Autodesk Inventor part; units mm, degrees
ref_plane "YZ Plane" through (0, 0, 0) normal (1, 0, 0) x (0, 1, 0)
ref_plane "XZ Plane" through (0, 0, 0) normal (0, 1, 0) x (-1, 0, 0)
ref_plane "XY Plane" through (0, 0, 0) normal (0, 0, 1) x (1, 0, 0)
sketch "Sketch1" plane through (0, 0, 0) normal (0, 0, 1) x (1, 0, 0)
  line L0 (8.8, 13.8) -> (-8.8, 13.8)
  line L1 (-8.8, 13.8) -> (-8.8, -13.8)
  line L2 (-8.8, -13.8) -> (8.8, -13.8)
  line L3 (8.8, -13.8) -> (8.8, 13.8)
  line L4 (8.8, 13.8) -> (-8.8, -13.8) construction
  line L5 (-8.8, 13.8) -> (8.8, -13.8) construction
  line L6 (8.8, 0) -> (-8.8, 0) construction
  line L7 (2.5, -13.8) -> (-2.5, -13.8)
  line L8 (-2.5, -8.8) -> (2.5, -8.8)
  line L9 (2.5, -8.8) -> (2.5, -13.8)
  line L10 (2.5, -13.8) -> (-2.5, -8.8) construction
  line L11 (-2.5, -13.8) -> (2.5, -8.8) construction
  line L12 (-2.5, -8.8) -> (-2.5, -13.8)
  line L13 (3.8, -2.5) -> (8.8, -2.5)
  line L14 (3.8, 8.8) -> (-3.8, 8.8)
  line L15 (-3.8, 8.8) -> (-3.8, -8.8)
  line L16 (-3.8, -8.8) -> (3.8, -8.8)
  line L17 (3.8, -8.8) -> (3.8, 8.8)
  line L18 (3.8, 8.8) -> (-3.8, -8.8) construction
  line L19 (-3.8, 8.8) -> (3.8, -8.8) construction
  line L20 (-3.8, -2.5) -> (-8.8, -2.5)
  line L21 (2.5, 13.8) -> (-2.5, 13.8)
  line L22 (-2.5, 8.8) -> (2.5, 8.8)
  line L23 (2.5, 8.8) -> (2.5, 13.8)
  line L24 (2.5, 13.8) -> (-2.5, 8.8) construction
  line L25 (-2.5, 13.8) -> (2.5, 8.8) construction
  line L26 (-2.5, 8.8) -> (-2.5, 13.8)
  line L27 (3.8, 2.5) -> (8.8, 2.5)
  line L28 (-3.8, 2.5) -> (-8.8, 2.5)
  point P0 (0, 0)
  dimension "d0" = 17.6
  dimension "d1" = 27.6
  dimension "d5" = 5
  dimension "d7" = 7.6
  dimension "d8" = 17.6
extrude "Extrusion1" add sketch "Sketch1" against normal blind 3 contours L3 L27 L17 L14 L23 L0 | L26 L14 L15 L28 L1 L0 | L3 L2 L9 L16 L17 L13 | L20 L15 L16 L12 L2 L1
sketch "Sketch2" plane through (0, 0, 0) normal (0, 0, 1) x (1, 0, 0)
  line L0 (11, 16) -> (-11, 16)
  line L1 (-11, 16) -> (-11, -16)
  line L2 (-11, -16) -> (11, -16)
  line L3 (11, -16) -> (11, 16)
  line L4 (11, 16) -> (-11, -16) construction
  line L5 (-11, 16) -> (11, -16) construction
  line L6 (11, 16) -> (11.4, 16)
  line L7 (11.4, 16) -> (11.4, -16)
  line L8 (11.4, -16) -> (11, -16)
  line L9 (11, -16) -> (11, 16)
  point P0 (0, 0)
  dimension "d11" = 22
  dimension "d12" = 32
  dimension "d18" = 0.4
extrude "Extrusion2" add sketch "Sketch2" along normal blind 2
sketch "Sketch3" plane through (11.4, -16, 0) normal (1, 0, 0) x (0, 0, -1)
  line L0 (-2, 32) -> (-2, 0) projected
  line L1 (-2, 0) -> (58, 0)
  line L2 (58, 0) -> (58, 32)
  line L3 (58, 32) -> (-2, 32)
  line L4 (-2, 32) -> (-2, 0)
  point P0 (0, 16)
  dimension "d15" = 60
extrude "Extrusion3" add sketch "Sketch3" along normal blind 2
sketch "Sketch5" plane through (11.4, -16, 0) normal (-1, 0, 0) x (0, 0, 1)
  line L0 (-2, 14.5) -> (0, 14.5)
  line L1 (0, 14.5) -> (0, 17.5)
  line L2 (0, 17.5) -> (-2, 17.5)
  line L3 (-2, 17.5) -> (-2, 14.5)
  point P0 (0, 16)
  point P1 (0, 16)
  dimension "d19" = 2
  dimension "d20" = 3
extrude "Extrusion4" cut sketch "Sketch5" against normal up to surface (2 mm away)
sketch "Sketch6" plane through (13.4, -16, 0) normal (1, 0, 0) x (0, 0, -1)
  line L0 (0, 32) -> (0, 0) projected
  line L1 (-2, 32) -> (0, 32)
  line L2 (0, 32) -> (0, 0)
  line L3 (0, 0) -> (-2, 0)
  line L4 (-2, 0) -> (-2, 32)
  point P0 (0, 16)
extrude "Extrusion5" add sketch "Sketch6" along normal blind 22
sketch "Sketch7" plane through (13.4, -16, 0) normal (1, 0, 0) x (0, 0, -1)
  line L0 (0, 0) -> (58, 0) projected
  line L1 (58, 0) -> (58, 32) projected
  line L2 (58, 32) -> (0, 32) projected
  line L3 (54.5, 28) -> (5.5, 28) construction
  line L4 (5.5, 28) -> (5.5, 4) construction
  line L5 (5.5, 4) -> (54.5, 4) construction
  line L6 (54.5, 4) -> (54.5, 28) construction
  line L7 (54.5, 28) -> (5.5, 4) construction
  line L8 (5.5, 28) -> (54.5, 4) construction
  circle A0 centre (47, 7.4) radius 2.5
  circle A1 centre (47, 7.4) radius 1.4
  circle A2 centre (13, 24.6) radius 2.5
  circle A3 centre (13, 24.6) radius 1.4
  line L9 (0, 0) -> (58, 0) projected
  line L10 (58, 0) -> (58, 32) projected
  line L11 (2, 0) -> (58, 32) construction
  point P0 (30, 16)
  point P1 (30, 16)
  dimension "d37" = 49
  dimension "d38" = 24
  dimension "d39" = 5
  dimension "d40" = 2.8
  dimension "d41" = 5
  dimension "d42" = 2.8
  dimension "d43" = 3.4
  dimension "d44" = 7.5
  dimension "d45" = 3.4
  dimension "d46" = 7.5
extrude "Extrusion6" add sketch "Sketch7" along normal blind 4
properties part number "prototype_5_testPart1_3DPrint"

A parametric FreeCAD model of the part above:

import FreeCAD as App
import Part
import Sketcher
from FreeCAD import Vector
Q = App.Units.Quantity

doc = App.newDocument("Part")
body = doc.addObject("PartDesign::Body", "Body")
body.AllowCompound = True

sketch1 = body.newObject("Sketcher::SketchObject", "Sketch")
sketch1.AttachmentSupport = (doc.getObject("XY_Plane"), [""])
sketch1.MapMode = "FlatFace"
sketch1.addGeometry(Part.LineSegment(Vector(8.8, 2.5, 0), Vector(8.8, 13.8, 0)), False)
sketch1.addGeometry(Part.LineSegment(Vector(8.8, 13.8, 0), Vector(2.5, 13.8, 0)), False)
sketch1.addGeometry(Part.LineSegment(Vector(2.5, 13.8, 0), Vector(2.5, 8.8, 0)), False)
sketch1.addGeometry(Part.LineSegment(Vector(2.5, 8.8, 0), Vector(3.8, 8.8, 0)), False)
sketch1.addGeometry(Part.LineSegment(Vector(3.8, 8.8, 0), Vector(3.8, 2.5, 0)), False)
sketch1.addGeometry(Part.LineSegment(Vector(3.8, 2.5, 0), Vector(8.8, 2.5, 0)), False)
sketch1.addGeometry(Part.LineSegment(Vector(-2.5, 8.8, 0), Vector(-2.5, 13.8, 0)), False)
sketch1.addGeometry(Part.LineSegment(Vector(-2.5, 13.8, 0), Vector(-8.8, 13.8, 0)), False)
sketch1.addGeometry(Part.LineSegment(Vector(-8.8, 13.8, 0), Vector(-8.8, 2.5, 0)), False)
sketch1.addGeometry(Part.LineSegment(Vector(-8.8, 2.5, 0), Vector(-3.8, 2.5, 0)), False)
sketch1.addGeometry(Part.LineSegment(Vector(-3.8, 2.5, 0), Vector(-3.8, 8.8, 0)), False)
sketch1.addGeometry(Part.LineSegment(Vector(-3.8, 8.8, 0), Vector(-2.5, 8.8, 0)), False)
sketch1.addGeometry(Part.LineSegment(Vector(8.8, -13.8, 0), Vector(8.8, -2.5, 0)), False)
sketch1.addGeometry(Part.LineSegment(Vector(8.8, -2.5, 0), Vector(3.8, -2.5, 0)), False)
sketch1.addGeometry(Part.LineSegment(Vector(3.8, -2.5, 0), Vector(3.8, -8.8, 0)), False)
sketch1.addGeometry(Part.LineSegment(Vector(3.8, -8.8, 0), Vector(2.5, -8.8, 0)), False)
sketch1.addGeometry(Part.LineSegment(Vector(2.5, -8.8, 0), Vector(2.5, -13.8, 0)), False)
sketch1.addGeometry(Part.LineSegment(Vector(2.5, -13.8, 0), Vector(8.8, -13.8, 0)), False)
sketch1.addGeometry(Part.LineSegment(Vector(-3.8, -2.5, 0), Vector(-8.8, -2.5, 0)), False)
sketch1.addGeometry(Part.LineSegment(Vector(-8.8, -2.5, 0), Vector(-8.8, -13.8, 0)), False)
sketch1.addGeometry(Part.LineSegment(Vector(-8.8, -13.8, 0), Vector(-2.5, -13.8, 0)), False)
sketch1.addGeometry(Part.LineSegment(Vector(-2.5, -13.8, 0), Vector(-2.5, -8.8, 0)), False)
sketch1.addGeometry(Part.LineSegment(Vector(-2.5, -8.8, 0), Vector(-3.8, -8.8, 0)), False)
sketch1.addGeometry(Part.LineSegment(Vector(-3.8, -8.8, 0), Vector(-3.8, -2.5, 0)), False)
sketch1.addConstraint(Sketcher.Constraint("Coincident", 0, 2, 1, 1))
sketch1.addConstraint(Sketcher.Constraint("Coincident", 1, 2, 2, 1))
sketch1.addConstraint(Sketcher.Constraint("Coincident", 2, 2, 3, 1))
sketch1.addConstraint(Sketcher.Constraint("Coincident", 3, 2, 4, 1))
sketch1.addConstraint(Sketcher.Constraint("Coincident", 4, 2, 5, 1))
sketch1.addConstraint(Sketcher.Constraint("Coincident", 5, 2, 0, 1))
sketch1.addConstraint(Sketcher.Constraint("Coincident", 6, 2, 7, 1))
sketch1.addConstraint(Sketcher.Constraint("Coincident", 7, 2, 8, 1))
sketch1.addConstraint(Sketcher.Constraint("Coincident", 8, 2, 9, 1))
sketch1.addConstraint(Sketcher.Constraint("Coincident", 9, 2, 10, 1))
sketch1.addConstraint(Sketcher.Constraint("Coincident", 10, 2, 11, 1))
sketch1.addConstraint(Sketcher.Constraint("Coincident", 11, 2, 6, 1))
sketch1.addConstraint(Sketcher.Constraint("Coincident", 12, 2, 13, 1))
sketch1.addConstraint(Sketcher.Constraint("Coincident", 13, 2, 14, 1))
sketch1.addConstraint(Sketcher.Constraint("Coincident", 14, 2, 15, 1))
sketch1.addConstraint(Sketcher.Constraint("Coincident", 15, 2, 16, 1))
sketch1.addConstraint(Sketcher.Constraint("Coincident", 16, 2, 17, 1))
sketch1.addConstraint(Sketcher.Constraint("Coincident", 17, 2, 12, 1))
sketch1.addConstraint(Sketcher.Constraint("Coincident", 18, 2, 19, 1))
sketch1.addConstraint(Sketcher.Constraint("Coincident", 19, 2, 20, 1))
sketch1.addConstraint(Sketcher.Constraint("Coincident", 20, 2, 21, 1))
sketch1.addConstraint(Sketcher.Constraint("Coincident", 21, 2, 22, 1))
sketch1.addConstraint(Sketcher.Constraint("Coincident", 22, 2, 23, 1))
sketch1.addConstraint(Sketcher.Constraint("Coincident", 23, 2, 18, 1))
sketch1.addConstraint(Sketcher.Constraint("Vertical", 0))
sketch1.addConstraint(Sketcher.Constraint("Horizontal", 1))
sketch1.addConstraint(Sketcher.Constraint("Vertical", 2))
sketch1.addConstraint(Sketcher.Constraint("Horizontal", 3))
sketch1.addConstraint(Sketcher.Constraint("Vertical", 4))
sketch1.addConstraint(Sketcher.Constraint("Horizontal", 5))
sketch1.addConstraint(Sketcher.Constraint("Vertical", 6))
sketch1.addConstraint(Sketcher.Constraint("Horizontal", 7))
sketch1.addConstraint(Sketcher.Constraint("Vertical", 8))
sketch1.addConstraint(Sketcher.Constraint("Horizontal", 9))
sketch1.addConstraint(Sketcher.Constraint("Vertical", 10))
sketch1.addConstraint(Sketcher.Constraint("Horizontal", 11))
sketch1.addConstraint(Sketcher.Constraint("Vertical", 12))
sketch1.addConstraint(Sketcher.Constraint("Horizontal", 13))
sketch1.addConstraint(Sketcher.Constraint("Vertical", 14))
sketch1.addConstraint(Sketcher.Constraint("Horizontal", 15))
sketch1.addConstraint(Sketcher.Constraint("Vertical", 16))
sketch1.addConstraint(Sketcher.Constraint("Horizontal", 17))
sketch1.addConstraint(Sketcher.Constraint("Horizontal", 18))
sketch1.addConstraint(Sketcher.Constraint("Vertical", 19))
sketch1.addConstraint(Sketcher.Constraint("Horizontal", 20))
sketch1.addConstraint(Sketcher.Constraint("Vertical", 21))
sketch1.addConstraint(Sketcher.Constraint("Horizontal", 22))
sketch1.addConstraint(Sketcher.Constraint("Vertical", 23))
sketch1.addConstraint(Sketcher.Constraint("Symmetric", 8, 2, 12, 2, -1, 1))
sketch1.addConstraint(Sketcher.Constraint("Symmetric", 10, 2, 14, 2, -1, 1))
sketch1.addConstraint(Sketcher.Constraint("Symmetric", 6, 2, 16, 2, -1, 1))
sketch1.addConstraint(Sketcher.Constraint("Symmetric", 5, 2, 18, 2, -1, 1))
sketch1.addConstraint(Sketcher.Constraint("Symmetric", 1, 2, 20, 2, -1, 1))
sketch1.addConstraint(Sketcher.Constraint("Symmetric", 3, 2, 22, 2, -1, 1))
sketch1.addConstraint(Sketcher.Constraint("Symmetric", 1, 2, 6, 2, -2))
sketch1.addConstraint(Sketcher.Constraint("Symmetric", 5, 2, 8, 2, -2))
sketch1.addConstraint(Sketcher.Constraint("Symmetric", 3, 2, 10, 2, -2))
sketch1.addConstraint(Sketcher.Constraint("Equal", 18, 2))
sketch1.addConstraint(Sketcher.Constraint("Equal", 20, 4))
sketch1.addConstraint(Sketcher.Constraint("DistanceX", 5, 1, 5, 2, Q("5 mm")))
sketch1.addConstraint(Sketcher.Constraint("DistanceX", 6, 2, 1, 2, Q("5 mm")))
sketch1.addConstraint(Sketcher.Constraint("DistanceY", 12, 2, 5, 2, Q("5 mm")))
sketch1.addConstraint(Sketcher.Constraint("DistanceX", 9, 2, 4, 2, Q("7.6 mm")))
pad1 = body.newObject("PartDesign::Pad", "Pad")
pad1.Profile = sketch1
pad1.Length = 3
pad1.Reversed = True

sketch2 = body.newObject("Sketcher::SketchObject", "Sketch001")
sketch2.AttachmentSupport = (doc.getObject("XY_Plane"), [""])
sketch2.MapMode = "FlatFace"
sketch2.addGeometry(Part.LineSegment(Vector(-11, -16, 0), Vector(11.4, -16, 0)), False)
sketch2.addGeometry(Part.LineSegment(Vector(11.4, -16, 0), Vector(11.4, 16, 0)), False)
sketch2.addGeometry(Part.LineSegment(Vector(11.4, 16, 0), Vector(-11, 16, 0)), False)
sketch2.addGeometry(Part.LineSegment(Vector(-11, 16, 0), Vector(-11, -16, 0)), False)
sketch2.addConstraint(Sketcher.Constraint("Coincident", 0, 2, 1, 1))
sketch2.addConstraint(Sketcher.Constraint("Coincident", 1, 2, 2, 1))
sketch2.addConstraint(Sketcher.Constraint("Coincident", 2, 2, 3, 1))
sketch2.addConstraint(Sketcher.Constraint("Coincident", 3, 2, 0, 1))
sketch2.addConstraint(Sketcher.Constraint("Horizontal", 0))
sketch2.addConstraint(Sketcher.Constraint("Vertical", 1))
sketch2.addConstraint(Sketcher.Constraint("Horizontal", 2))
sketch2.addConstraint(Sketcher.Constraint("Vertical", 3))
sketch2.addConstraint(Sketcher.Constraint("DistanceY", 1, 1, 1, 2, Q("32 mm")))
sketch2.addConstraint(Sketcher.Constraint("DistanceX", 0, 1, 0, 2, Q("22.4 mm")))
sketch2.addConstraint(Sketcher.Constraint("DistanceY", 0, 2, -1, 1, Q("16 mm")))
sketch2.addConstraint(Sketcher.Constraint("DistanceX", 2, 2, -1, 1, Q("11 mm")))
pad2 = body.newObject("PartDesign::Pad", "Pad001")
pad2.Profile = sketch2
pad2.Length = 2

sketch3 = body.newObject("Sketcher::SketchObject", "Sketch002")
sketch3.AttachmentSupport = (doc.getObject("YZ_Plane"), [""])
sketch3.MapMode = "FlatFace"
sketch3.AttachmentOffset = App.Placement(Vector(0, 0, 11.4), App.Rotation())
sketch3.addGeometry(Part.LineSegment(Vector(16, -58, 0), Vector(16, 2, 0)), False)
sketch3.addGeometry(Part.LineSegment(Vector(16, 2, 0), Vector(-16, 2, 0)), False)
sketch3.addGeometry(Part.LineSegment(Vector(-16, 2, 0), Vector(-16, -58, 0)), False)
sketch3.addGeometry(Part.LineSegment(Vector(-16, -58, 0), Vector(16, -58, 0)), False)
sketch3.addConstraint(Sketcher.Constraint("Coincident", 0, 2, 1, 1))
sketch3.addConstraint(Sketcher.Constraint("Coincident", 1, 2, 2, 1))
sketch3.addConstraint(Sketcher.Constraint("Coincident", 2, 2, 3, 1))
sketch3.addConstraint(Sketcher.Constraint("Coincident", 3, 2, 0, 1))
sketch3.addConstraint(Sketcher.Constraint("Vertical", 0))
sketch3.addConstraint(Sketcher.Constraint("Horizontal", 1))
sketch3.addConstraint(Sketcher.Constraint("Vertical", 2))
sketch3.addConstraint(Sketcher.Constraint("Horizontal", 3))
sketch3.addConstraint(Sketcher.Constraint("DistanceY", 0, 1, 0, 2, Q("60 mm")))
sketch3.addConstraint(Sketcher.Constraint("DistanceX", 1, 2, 1, 1, Q("32 mm")))
sketch3.addConstraint(Sketcher.Constraint("DistanceX", -1, 1, 0, 2, Q("16 mm")))
sketch3.addConstraint(Sketcher.Constraint("DistanceY", -1, 1, 0, 2, Q("2 mm")))
pad3 = body.newObject("PartDesign::Pad", "Pad002")
pad3.Profile = sketch3
pad3.Length = 2

sketch4 = body.newObject("Sketcher::SketchObject", "Sketch003")
sketch4.AttachmentSupport = (doc.getObject("YZ_Plane"), [""])
sketch4.MapMode = "FlatFace"
sketch4.AttachmentOffset = App.Placement(Vector(0, 0, 11.4), App.Rotation())
sketch4.addGeometry(Part.LineSegment(Vector(1.5, -2, 0), Vector(-1.5, -2, 0)), False)
sketch4.addGeometry(Part.LineSegment(Vector(-1.5, -2, 0), Vector(-1.5, 0, 0)), False)
sketch4.addGeometry(Part.LineSegment(Vector(-1.5, 0, 0), Vector(1.5, 0, 0)), False)
sketch4.addGeometry(Part.LineSegment(Vector(1.5, 0, 0), Vector(1.5, -2, 0)), False)
sketch4.addConstraint(Sketcher.Constraint("Coincident", 0, 2, 1, 1))
sketch4.addConstraint(Sketcher.Constraint("Coincident", 1, 2, 2, 1))
sketch4.addConstraint(Sketcher.Constraint("Coincident", 2, 2, 3, 1))
sketch4.addConstraint(Sketcher.Constraint("Coincident", 3, 2, 0, 1))
sketch4.addConstraint(Sketcher.Constraint("Horizontal", 0))
sketch4.addConstraint(Sketcher.Constraint("Vertical", 1))
sketch4.addConstraint(Sketcher.Constraint("Horizontal", 2))
sketch4.addConstraint(Sketcher.Constraint("Vertical", 3))
sketch4.addConstraint(Sketcher.Constraint("Symmetric", 1, 2, 2, 2, -1, 1))
sketch4.addConstraint(Sketcher.Constraint("DistanceX", 0, 2, 0, 1, Q("3 mm")))
sketch4.addConstraint(Sketcher.Constraint("DistanceY", 1, 1, 1, 2, Q("2 mm")))
pocket1 = body.newObject("PartDesign::Pocket", "Pocket")
pocket1.Profile = sketch4
pocket1.Length = 2
pocket1.Reversed = True

sketch5 = body.newObject("Sketcher::SketchObject", "Sketch004")
sketch5.AttachmentSupport = (doc.getObject("YZ_Plane"), [""])
sketch5.MapMode = "FlatFace"
sketch5.AttachmentOffset = App.Placement(Vector(0, 0, 13.4), App.Rotation())
sketch5.addGeometry(Part.LineSegment(Vector(-16, 0, 0), Vector(16, 0, 0)), False)
sketch5.addGeometry(Part.LineSegment(Vector(16, 0, 0), Vector(16, 2, 0)), False)
sketch5.addGeometry(Part.LineSegment(Vector(16, 2, 0), Vector(-16, 2, 0)), False)
sketch5.addGeometry(Part.LineSegment(Vector(-16, 2, 0), Vector(-16, 0, 0)), False)
sketch5.addConstraint(Sketcher.Constraint("Coincident", 0, 2, 1, 1))
sketch5.addConstraint(Sketcher.Constraint("Coincident", 1, 2, 2, 1))
sketch5.addConstraint(Sketcher.Constraint("Coincident", 2, 2, 3, 1))
sketch5.addConstraint(Sketcher.Constraint("Coincident", 3, 2, 0, 1))
sketch5.addConstraint(Sketcher.Constraint("Horizontal", 0))
sketch5.addConstraint(Sketcher.Constraint("Vertical", 1))
sketch5.addConstraint(Sketcher.Constraint("Horizontal", 2))
sketch5.addConstraint(Sketcher.Constraint("Vertical", 3))
sketch5.addConstraint(Sketcher.Constraint("Symmetric", 0, 2, 3, 2, -1, 1))
sketch5.addConstraint(Sketcher.Constraint("DistanceX", 0, 1, 0, 2, Q("32 mm")))
sketch5.addConstraint(Sketcher.Constraint("DistanceY", 1, 1, 1, 2, Q("2 mm")))
pad4 = body.newObject("PartDesign::Pad", "Pad003")
pad4.Profile = sketch5
pad4.Length = 22

sketch6 = body.newObject("Sketcher::SketchObject", "Sketch005")
sketch6.AttachmentSupport = (doc.getObject("YZ_Plane"), [""])
sketch6.MapMode = "FlatFace"
sketch6.AttachmentOffset = App.Placement(Vector(0, 0, 13.4), App.Rotation())
sketch6.addGeometry(Part.Circle(Vector(-8.6, -47, 0), Vector(0, 0, 1), 2.5), False)
sketch6.addGeometry(Part.Circle(Vector(-8.6, -47, 0), Vector(0, 0, 1), 1.4), False)
sketch6.addGeometry(Part.Circle(Vector(8.6, -13, 0), Vector(0, 0, 1), 2.5), False)
sketch6.addGeometry(Part.Circle(Vector(8.6, -13, 0), Vector(0, 0, 1), 1.4), False)
sketch6.addConstraint(Sketcher.Constraint("Coincident", 1, 3, 0, 3))
sketch6.addConstraint(Sketcher.Constraint("Coincident", 3, 3, 2, 3))
sketch6.addConstraint(Sketcher.Constraint("Equal", 0, 2))
sketch6.addConstraint(Sketcher.Constraint("Equal", 1, 3))
sketch6.addConstraint(Sketcher.Constraint("Diameter", 0, Q("5 mm")))
sketch6.addConstraint(Sketcher.Constraint("Diameter", 1, Q("2.8 mm")))
sketch6.addConstraint(Sketcher.Constraint("DistanceY", 0, 3, -1, 1, Q("47 mm")))
sketch6.addConstraint(Sketcher.Constraint("DistanceY", 2, 3, -1, 1, Q("13 mm")))
sketch6.addConstraint(Sketcher.Constraint("DistanceX", 0, 3, -1, 1, Q("8.6 mm")))
sketch6.addConstraint(Sketcher.Constraint("DistanceX", -1, 1, 2, 3, Q("8.6 mm")))
pad5 = body.newObject("PartDesign::Pad", "Pad004")
pad5.Profile = sketch6
pad5.Length = 4

doc.recompute()
